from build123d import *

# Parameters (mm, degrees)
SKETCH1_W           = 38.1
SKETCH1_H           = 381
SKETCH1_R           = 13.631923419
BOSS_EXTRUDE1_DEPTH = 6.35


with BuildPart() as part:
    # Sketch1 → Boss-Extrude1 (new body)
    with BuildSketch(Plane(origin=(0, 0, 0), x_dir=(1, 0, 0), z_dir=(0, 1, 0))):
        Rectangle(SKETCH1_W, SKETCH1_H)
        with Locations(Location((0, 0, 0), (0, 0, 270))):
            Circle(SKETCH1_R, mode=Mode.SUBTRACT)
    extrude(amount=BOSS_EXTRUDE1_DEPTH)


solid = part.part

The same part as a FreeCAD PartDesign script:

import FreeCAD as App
import Part
import Sketcher
from FreeCAD import Vector
Q = App.Units.Quantity

doc = App.newDocument("Part")
body = doc.addObject("PartDesign::Body", "Body")

# Sketch on XZ plane
sketch1 = body.newObject("Sketcher::SketchObject", "Sketch")
sketch1.AttachmentSupport = (doc.getObject("XZ_Plane"), [""])
sketch1.MapMode = "FlatFace"
sketch1.addGeometry([
    Part.LineSegment(Vector(-19, -190, 0), Vector(-19, 190, 0)),  # 0
    Part.LineSegment(Vector(-19, 190, 0), Vector(19, 190, 0)),  # 1
    Part.LineSegment(Vector(19, 190, 0), Vector(19, -190, 0)),  # 2
    Part.LineSegment(Vector(19, -190, 0), Vector(-19, -190, 0)),  # 3
    Part.Circle(Vector(0, 0, 0), Vector(0, 0, 1), 14),  # 4
], False)
sketch1.addConstraint([
    Sketcher.Constraint("Coincident", 0, 2, 1, 1),
    Sketcher.Constraint("Coincident", 1, 2, 2, 1),
    Sketcher.Constraint("Coincident", 2, 2, 3, 1),
    Sketcher.Constraint("Coincident", 3, 2, 0, 1),
    Sketcher.Constraint("Vertical", 0),
    Sketcher.Constraint("Horizontal", 1),
    Sketcher.Constraint("Vertical", 2),
    Sketcher.Constraint("Horizontal", 3),
    Sketcher.Constraint("Coincident", 4, 3, -1, 1),
    Sketcher.Constraint("Symmetric", 0, 2, 2, 2, -1, 1),
    Sketcher.Constraint("DistanceY", 0, 1, 0, 2, Q("15 in")),
    Sketcher.Constraint("DistanceX", 1, 1, 1, 2, Q("1.5 in")),
    Sketcher.Constraint("Diameter", 4, 27.263847),
])
pad1 = body.newObject("PartDesign::Pad", "Pad")
pad1.Profile = sketch1
pad1.Length = Q("0.25 in")
pad1.Reversed = True

doc.recompute()
